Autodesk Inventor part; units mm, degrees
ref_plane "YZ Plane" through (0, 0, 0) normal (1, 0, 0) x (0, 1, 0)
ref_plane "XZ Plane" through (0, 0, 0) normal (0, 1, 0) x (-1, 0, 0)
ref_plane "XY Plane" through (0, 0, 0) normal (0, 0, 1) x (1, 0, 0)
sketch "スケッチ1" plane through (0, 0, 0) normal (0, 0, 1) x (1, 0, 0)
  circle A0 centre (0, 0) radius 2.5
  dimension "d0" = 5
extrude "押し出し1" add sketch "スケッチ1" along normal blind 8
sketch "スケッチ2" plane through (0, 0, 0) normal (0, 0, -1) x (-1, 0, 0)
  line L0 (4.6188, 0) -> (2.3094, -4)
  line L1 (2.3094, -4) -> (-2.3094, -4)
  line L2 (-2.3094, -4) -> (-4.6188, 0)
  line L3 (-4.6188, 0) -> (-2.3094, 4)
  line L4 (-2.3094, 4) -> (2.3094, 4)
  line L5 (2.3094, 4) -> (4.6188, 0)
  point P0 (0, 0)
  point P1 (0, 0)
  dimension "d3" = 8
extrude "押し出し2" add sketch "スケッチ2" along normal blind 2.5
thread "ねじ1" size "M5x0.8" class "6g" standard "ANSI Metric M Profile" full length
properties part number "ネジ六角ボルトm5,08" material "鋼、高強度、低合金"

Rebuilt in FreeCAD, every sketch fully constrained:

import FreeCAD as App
import Part
import Sketcher
Q = App.Units.Quantity


def add_polygon(sketch, points):
    """Adds a closed chain of lines whose ends are joined by coincident constraints."""
    first, n = sketch.GeometryCount, len(points)
    for a, b in zip(points, points[1:] + points[:1]):
        sketch.addGeometry(Part.LineSegment(App.Vector(*a, 0), App.Vector(*b, 0)), False)
    for i in range(n):
        sketch.addConstraint(Sketcher.Constraint("Coincident", first + i, 2, first + (i + 1) % n, 1))

doc = App.newDocument("Part")
body = doc.addObject("PartDesign::Body", "Body")

sketch1 = body.newObject("Sketcher::SketchObject", "Sketch")
sketch1.AttachmentSupport = (doc.getObject("XY_Plane"), [""])
sketch1.MapMode = "FlatFace"
sketch1.addGeometry(Part.Circle(App.Vector(0, 0, 0), App.Vector(0, 0, 1), 2.5), False)
sketch1.addConstraint([
    Sketcher.Constraint("Coincident", 0, 3, -1, 1),
    Sketcher.Constraint("Diameter", 0, 5.0),
])
pad1 = body.newObject("PartDesign::Pad", "Pad")
pad1.Profile = sketch1
pad1.Length = 8

sketch2 = body.newObject("Sketcher::SketchObject", "Sketch001")
sketch2.AttachmentSupport = (doc.getObject("XY_Plane"), [""])
sketch2.MapMode = "FlatFace"
add_polygon(sketch2, [(-2.3, -4), (-4.6, 0), (-2.3, 4), (2.3, 4), (4.6, 0), (2.3, -4)])
sketch2.addConstraint([
    Sketcher.Constraint("Horizontal", 2),
    Sketcher.Constraint("Horizontal", 5),
    Sketcher.Constraint("Symmetric", 0, 2, 3, 2, -1, 1),
    Sketcher.Constraint("Symmetric", 1, 2, 4, 2, -1, 1),
    Sketcher.Constraint("PointOnObject", 0, 2, -1),
    Sketcher.Constraint("Parallel", 0, 3),
    Sketcher.Constraint("Vertical", 2, 2, 4, 2),
    Sketcher.Constraint("DistanceY", 4, 2, 2, 2, 8.0),
    Sketcher.Constraint("Angle", 0, Q("120 deg")),
    Sketcher.Constraint("DistanceX", 2, 1, 2, 2, 4.6188),
])
pad2 = body.newObject("PartDesign::Pad", "Pad001")
pad2.Profile = sketch2
pad2.Length = 2.5
pad2.Reversed = True

doc.recompute()
